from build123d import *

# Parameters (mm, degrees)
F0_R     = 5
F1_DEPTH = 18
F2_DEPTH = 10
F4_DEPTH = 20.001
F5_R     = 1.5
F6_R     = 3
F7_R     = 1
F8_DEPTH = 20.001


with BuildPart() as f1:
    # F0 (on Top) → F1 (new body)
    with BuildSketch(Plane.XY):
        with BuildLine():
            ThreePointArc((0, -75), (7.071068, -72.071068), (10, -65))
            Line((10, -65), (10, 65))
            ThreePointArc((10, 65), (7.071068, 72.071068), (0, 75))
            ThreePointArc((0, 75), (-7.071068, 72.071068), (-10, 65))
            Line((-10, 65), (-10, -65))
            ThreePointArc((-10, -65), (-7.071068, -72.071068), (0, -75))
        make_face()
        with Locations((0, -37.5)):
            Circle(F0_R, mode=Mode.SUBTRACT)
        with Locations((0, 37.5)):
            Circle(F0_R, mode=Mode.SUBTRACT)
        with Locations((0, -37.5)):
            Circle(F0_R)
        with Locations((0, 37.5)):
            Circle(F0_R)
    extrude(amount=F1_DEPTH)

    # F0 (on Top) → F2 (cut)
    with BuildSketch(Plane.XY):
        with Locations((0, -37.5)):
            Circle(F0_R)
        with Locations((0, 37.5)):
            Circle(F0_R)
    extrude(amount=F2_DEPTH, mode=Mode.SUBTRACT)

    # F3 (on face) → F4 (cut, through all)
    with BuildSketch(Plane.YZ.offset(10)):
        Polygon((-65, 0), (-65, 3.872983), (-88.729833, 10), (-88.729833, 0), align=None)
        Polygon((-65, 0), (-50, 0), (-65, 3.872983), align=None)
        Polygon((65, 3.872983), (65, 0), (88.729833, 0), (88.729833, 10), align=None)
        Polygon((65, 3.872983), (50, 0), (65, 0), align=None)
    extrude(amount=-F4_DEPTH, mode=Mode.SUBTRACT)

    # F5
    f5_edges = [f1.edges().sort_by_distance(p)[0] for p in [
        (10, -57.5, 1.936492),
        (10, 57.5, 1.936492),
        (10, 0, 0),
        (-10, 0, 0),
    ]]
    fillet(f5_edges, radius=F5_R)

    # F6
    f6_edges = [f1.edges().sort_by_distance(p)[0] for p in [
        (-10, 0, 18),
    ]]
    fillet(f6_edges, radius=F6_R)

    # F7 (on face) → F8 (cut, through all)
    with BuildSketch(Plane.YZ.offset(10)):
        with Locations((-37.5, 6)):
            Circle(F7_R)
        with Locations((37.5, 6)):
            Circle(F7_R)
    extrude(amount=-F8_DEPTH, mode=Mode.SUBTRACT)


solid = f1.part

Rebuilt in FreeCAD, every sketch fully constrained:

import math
import FreeCAD as App
import Part
import Sketcher
from FreeCAD import Vector


def edges_at(feature, points):
    """Names of the edges that pass closest to the given points."""
    edges = feature.Shape.Edges
    near = lambda p: min(range(len(edges)), key=lambda i: edges[i].distToShape(Part.Vertex(*p))[0])
    return sorted({f"Edge{near(p) + 1}" for p in points})


def add_polygon(sketch, points):
    """Adds a closed chain of lines whose ends are joined by coincident constraints."""
    first, n = sketch.GeometryCount, len(points)
    for a, b in zip(points, points[1:] + points[:1]):
        sketch.addGeometry(Part.LineSegment(App.Vector(*a, 0), App.Vector(*b, 0)), False)
    for i in range(n):
        sketch.addConstraint(Sketcher.Constraint("Coincident", first + i, 2, first + (i + 1) % n, 1))

doc = App.newDocument("Part")
body = doc.addObject("PartDesign::Body", "Body")

sketch1 = doc.addObject("Sketcher::SketchObject", "Sketch")
body.addObject(sketch1)
sketch1.AttachmentSupport = (doc.XY_Plane, [""])
sketch1.MapMode = "FlatFace"
sketch1.addGeometry(Part.ArcOfCircle(Part.Circle(Vector(0, -65, 0), Vector(0, 0, 1), 10), math.radians(-90), math.radians(0)), False)
sketch1.addGeometry(Part.LineSegment(Vector(10, -65, 0), Vector(10, 65, 0)), False)
sketch1.addGeometry(Part.ArcOfCircle(Part.Circle(Vector(0, 65, 0), Vector(0, 0, 1), 10), math.radians(0), math.radians(90)), False)
sketch1.addGeometry(Part.ArcOfCircle(Part.Circle(Vector(0, 65, 0), Vector(0, 0, 1), 10), math.radians(90), math.radians(180)), False)
sketch1.addGeometry(Part.LineSegment(Vector(-10, 65, 0), Vector(-10, -65, 0)), False)
sketch1.addGeometry(Part.ArcOfCircle(Part.Circle(Vector(0, -65, 0), Vector(0, 0, 1), 10), math.radians(180), math.radians(270)), False)
sketch1.addConstraint(Sketcher.Constraint("Tangent", 0, 2, 1, 1))
sketch1.addConstraint(Sketcher.Constraint("Tangent", 1, 2, 2, 1))
sketch1.addConstraint(Sketcher.Constraint("Tangent", 2, 2, 3, 1))
sketch1.addConstraint(Sketcher.Constraint("Tangent", 3, 2, 4, 1))
sketch1.addConstraint(Sketcher.Constraint("Tangent", 4, 2, 5, 1))
sketch1.addConstraint(Sketcher.Constraint("Tangent", 5, 2, 0, 1))
sketch1.addConstraint(Sketcher.Constraint("Vertical", 1))
sketch1.addConstraint(Sketcher.Constraint("Vertical", 4))
sketch1.addConstraint(Sketcher.Constraint("Equal", 0, 2))
sketch1.addConstraint(Sketcher.Constraint("Equal", 2, 3))
sketch1.addConstraint(Sketcher.Constraint("Symmetric", 0, 3, 2, 3, -1, 1))
sketch1.addConstraint(Sketcher.Constraint("PointOnObject", 2, 2, -2))
sketch1.addConstraint(Sketcher.Constraint("PointOnObject", 5, 2, -2))
sketch1.addConstraint(Sketcher.Constraint("Radius", 0, 9.999999))
sketch1.addConstraint(Sketcher.Constraint("DistanceY", 1, 1, 1, 2, 130.0))
pad1 = doc.addObject("PartDesign::Pad", "Pad")
body.addObject(pad1)
pad1.Profile = sketch1
pad1.Length = 18

sketch2 = doc.addObject("Sketcher::SketchObject", "Sketch001")
body.addObject(sketch2)
sketch2.AttachmentSupport = (doc.XY_Plane, [""])
sketch2.MapMode = "FlatFace"
sketch2.addGeometry(Part.Circle(Vector(0, -38, 0), Vector(0, 0, 1), 5), False)
sketch2.addGeometry(Part.Circle(Vector(0, 38, 0), Vector(0, 0, 1), 5), False)
sketch2.addConstraint(Sketcher.Constraint("Equal", 0, 1))
sketch2.addConstraint(Sketcher.Constraint("Symmetric", 0, 3, 1, 3, -1, 1))
sketch2.addConstraint(Sketcher.Constraint("PointOnObject", 0, 3, -2))
sketch2.addConstraint(Sketcher.Constraint("Diameter", 0, 10.0))
sketch2.addConstraint(Sketcher.Constraint("DistanceY", 0, 3, 1, 3, 75.0))
pocket1 = doc.addObject("PartDesign::Pocket", "Pocket")
body.addObject(pocket1)
pocket1.Profile = sketch2
pocket1.Length = 10
pocket1.Reversed = True

sketch3 = doc.addObject("Sketcher::SketchObject", "Sketch002")
body.addObject(sketch3)
sketch3.AttachmentSupport = (doc.YZ_Plane, [""])
sketch3.MapMode = "FlatFace"
sketch3.AttachmentOffset = App.Placement(Vector(0, 0, 10), App.Rotation())
add_polygon(sketch3, [(-65, 4), (-89, 10), (-89, 0), (-50, 0)])
add_polygon(sketch3, [(89, 0), (89, 10), (65, 4), (50, 0)])
sketch3.addConstraint(Sketcher.Constraint("Vertical", 1))
sketch3.addConstraint(Sketcher.Constraint("Horizontal", 2))
sketch3.addConstraint(Sketcher.Constraint("Vertical", 4))
sketch3.addConstraint(Sketcher.Constraint("Horizontal", 7))
sketch3.addConstraint(Sketcher.Constraint("Symmetric", 2, 2, 6, 2, -1, 1))
sketch3.addConstraint(Sketcher.Constraint("Symmetric", 0, 2, 4, 2, -2))
sketch3.addConstraint(Sketcher.Constraint("Symmetric", 3, 2, 5, 2, -2))
sketch3.addConstraint(Sketcher.Constraint("PointOnObject", 1, 2, -1))
sketch3.addConstraint(Sketcher.Constraint("Parallel", 0, 3))
sketch3.addConstraint(Sketcher.Constraint("DistanceY", 1, 2, 1, 1, 10.0))
sketch3.addConstraint(Sketcher.Constraint("DistanceX", 2, 2, -1, 1, 50.0))
sketch3.addConstraint(Sketcher.Constraint("DistanceX", 3, 2, -1, 1, 65.0))
sketch3.addConstraint(Sketcher.Constraint("DistanceX", 2, 1, 2, 2, 38.729833))
pocket2 = doc.addObject("PartDesign::Pocket", "Pocket001")
body.addObject(pocket2)
pocket2.Profile = sketch3
pocket2.Type = "ThroughAll"
doc.recompute()

fillet = doc.addObject("PartDesign::Fillet", "Fillet")
body.addObject(fillet)
fillet.Base = (pocket2, edges_at(pocket2, [
    (10, -57.5, 1.936),
    (10, 57.5, 1.936),
    (10, 0, 0),
    (-10, 0, 0),
]))
fillet.Radius = 1.5
doc.recompute()

fillet2 = doc.addObject("PartDesign::Fillet", "Fillet001")
body.addObject(fillet2)
fillet2.Base = (fillet, edges_at(fillet, [(-10, 0, 18)]))
fillet2.Radius = 3

sketch4 = doc.addObject("Sketcher::SketchObject", "Sketch003")
body.addObject(sketch4)
sketch4.AttachmentSupport = (doc.YZ_Plane, [""])
sketch4.MapMode = "FlatFace"
sketch4.AttachmentOffset = App.Placement(Vector(0, 0, 10), App.Rotation())
sketch4.addGeometry(Part.Circle(Vector(-37.5, 6, 0), Vector(0, 0, 1), 1), False)
sketch4.addGeometry(Part.Circle(Vector(37.5, 6, 0), Vector(0, 0, 1), 1), False)
sketch4.addConstraint(Sketcher.Constraint("Equal", 0, 1))
sketch4.addConstraint(Sketcher.Constraint("Symmetric", 0, 3, 1, 3, -2))
sketch4.addConstraint(Sketcher.Constraint("Diameter", 0, 2.0))
sketch4.addConstraint(Sketcher.Constraint("DistanceY", -1, 1, 0, 3, 6.0))
sketch4.addConstraint(Sketcher.Constraint("DistanceX", 0, 3, 1, 3, 75.0))
pocket3 = doc.addObject("PartDesign::Pocket", "Pocket002")
body.addObject(pocket3)
pocket3.Profile = sketch4
pocket3.Type = "ThroughAll"

doc.recompute()
